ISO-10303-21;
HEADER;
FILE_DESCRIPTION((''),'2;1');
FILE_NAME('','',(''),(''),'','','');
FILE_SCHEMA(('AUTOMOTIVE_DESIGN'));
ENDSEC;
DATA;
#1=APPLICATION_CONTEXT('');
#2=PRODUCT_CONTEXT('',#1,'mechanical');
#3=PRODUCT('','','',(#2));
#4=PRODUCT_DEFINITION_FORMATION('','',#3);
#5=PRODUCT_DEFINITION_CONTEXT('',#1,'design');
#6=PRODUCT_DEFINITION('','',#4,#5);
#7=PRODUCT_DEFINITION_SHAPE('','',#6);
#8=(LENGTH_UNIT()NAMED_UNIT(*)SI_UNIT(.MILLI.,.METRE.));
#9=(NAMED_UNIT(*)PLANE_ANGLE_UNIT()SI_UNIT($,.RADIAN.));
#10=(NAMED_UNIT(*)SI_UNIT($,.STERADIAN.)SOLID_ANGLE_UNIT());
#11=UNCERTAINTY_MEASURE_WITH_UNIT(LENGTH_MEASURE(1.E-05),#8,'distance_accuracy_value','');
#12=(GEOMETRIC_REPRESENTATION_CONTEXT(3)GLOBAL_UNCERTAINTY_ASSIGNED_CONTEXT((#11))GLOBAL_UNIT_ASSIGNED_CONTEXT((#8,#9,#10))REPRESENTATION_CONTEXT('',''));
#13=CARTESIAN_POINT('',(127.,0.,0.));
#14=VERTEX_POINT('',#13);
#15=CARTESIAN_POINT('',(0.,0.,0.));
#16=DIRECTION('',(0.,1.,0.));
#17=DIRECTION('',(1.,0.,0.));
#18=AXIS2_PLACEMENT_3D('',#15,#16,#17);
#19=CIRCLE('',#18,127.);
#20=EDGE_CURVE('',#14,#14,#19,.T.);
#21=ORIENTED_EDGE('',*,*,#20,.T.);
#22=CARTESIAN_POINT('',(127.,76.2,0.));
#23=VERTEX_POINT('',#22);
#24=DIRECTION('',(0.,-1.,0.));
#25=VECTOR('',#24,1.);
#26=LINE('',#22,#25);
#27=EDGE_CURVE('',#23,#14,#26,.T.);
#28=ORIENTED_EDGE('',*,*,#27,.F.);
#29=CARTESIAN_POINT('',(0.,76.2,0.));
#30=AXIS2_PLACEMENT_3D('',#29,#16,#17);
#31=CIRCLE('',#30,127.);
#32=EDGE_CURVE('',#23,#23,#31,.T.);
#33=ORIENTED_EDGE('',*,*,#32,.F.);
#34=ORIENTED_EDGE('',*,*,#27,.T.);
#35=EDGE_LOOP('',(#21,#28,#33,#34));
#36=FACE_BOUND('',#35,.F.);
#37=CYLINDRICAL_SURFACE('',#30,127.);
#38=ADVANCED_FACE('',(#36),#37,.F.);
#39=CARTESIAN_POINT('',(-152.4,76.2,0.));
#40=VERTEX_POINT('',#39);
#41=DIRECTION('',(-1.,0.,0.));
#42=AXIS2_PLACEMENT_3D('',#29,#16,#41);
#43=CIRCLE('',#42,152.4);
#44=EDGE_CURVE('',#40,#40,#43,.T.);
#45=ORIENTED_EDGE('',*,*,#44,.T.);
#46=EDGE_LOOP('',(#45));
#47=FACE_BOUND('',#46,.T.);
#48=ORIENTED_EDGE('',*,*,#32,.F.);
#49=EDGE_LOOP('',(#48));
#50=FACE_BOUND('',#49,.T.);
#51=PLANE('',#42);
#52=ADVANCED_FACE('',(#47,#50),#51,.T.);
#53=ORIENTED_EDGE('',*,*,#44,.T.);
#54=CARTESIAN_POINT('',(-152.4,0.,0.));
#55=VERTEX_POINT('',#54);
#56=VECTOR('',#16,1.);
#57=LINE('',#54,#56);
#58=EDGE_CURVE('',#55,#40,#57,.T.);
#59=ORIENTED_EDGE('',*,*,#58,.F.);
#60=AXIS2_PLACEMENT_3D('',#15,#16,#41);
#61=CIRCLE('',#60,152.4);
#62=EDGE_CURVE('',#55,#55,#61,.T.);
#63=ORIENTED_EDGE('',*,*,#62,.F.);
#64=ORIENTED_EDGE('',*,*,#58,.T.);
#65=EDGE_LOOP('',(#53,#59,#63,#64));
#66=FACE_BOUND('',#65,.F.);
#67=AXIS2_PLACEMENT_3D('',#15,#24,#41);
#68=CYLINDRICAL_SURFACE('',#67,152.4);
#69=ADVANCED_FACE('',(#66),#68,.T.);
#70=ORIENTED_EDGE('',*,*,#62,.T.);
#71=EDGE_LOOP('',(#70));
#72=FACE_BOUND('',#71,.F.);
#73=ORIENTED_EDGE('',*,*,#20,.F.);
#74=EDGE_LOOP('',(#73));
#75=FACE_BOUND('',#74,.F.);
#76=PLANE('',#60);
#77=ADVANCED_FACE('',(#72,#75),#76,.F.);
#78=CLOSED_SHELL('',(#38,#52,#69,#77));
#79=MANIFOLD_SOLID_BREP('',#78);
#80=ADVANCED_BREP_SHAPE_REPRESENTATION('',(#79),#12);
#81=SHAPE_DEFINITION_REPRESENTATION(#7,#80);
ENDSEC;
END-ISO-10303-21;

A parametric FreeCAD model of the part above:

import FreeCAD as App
import Part
import Sketcher
from FreeCAD import Vector
Q = App.Units.Quantity

doc = App.newDocument("Part")
params = doc.addObject("Spreadsheet::Sheet", "Params")
for row, (alias, value) in enumerate([
    ("sketch1_diameter", "12 in"),
    ("pad1_length", "3 in"),
    ("sketch2_diameter", "10 in"),
], start=1):
    params.set(f"A{row}", alias)
    params.set(f"B{row}", "=" + value)
    params.setAlias(f"B{row}", alias)

body = doc.addObject("PartDesign::Body", "Body")

# Sketch on XZ plane
sketch1 = doc.addObject("Sketcher::SketchObject", "Sketch")
body.addObject(sketch1)
sketch1.AttachmentSupport = (doc.XZ_Plane, [""])
sketch1.MapMode = "FlatFace"
sketch1.addGeometry(Part.Circle(Vector(0, 0, 0), Vector(0, 0, 1), 152.4), False)
sketch1.addConstraint([
    Sketcher.Constraint("Coincident", 0, 3, -1, 1),
    Sketcher.Constraint("Diameter", 0, Q("12 in")),
])
sketch1.setExpression("Constraints[1]", "Params.sketch1_diameter")
pad1 = doc.addObject("PartDesign::Pad", "Pad")
body.addObject(pad1)
pad1.Profile = sketch1
pad1.setExpression("Length", "Params.pad1_length")
pad1.Reversed = True

# Sketch on XZ plane
sketch2 = doc.addObject("Sketcher::SketchObject", "Sketch001")
body.addObject(sketch2)
sketch2.AttachmentSupport = (doc.XZ_Plane, [""])
sketch2.MapMode = "FlatFace"
sketch2.AttachmentOffset = App.Placement(Vector(0, 0, -3 * 25.4), App.Rotation())
sketch2.addGeometry(Part.Circle(Vector(0, 0, 0), Vector(0, 0, 1), 127), False)
sketch2.addConstraint([
    Sketcher.Constraint("Coincident", 0, 3, -1, 1),
    Sketcher.Constraint("Diameter", 0, Q("10 in")),
])
sketch2.setExpression("Constraints[1]", "Params.sketch2_diameter")
pocket1 = doc.addObject("PartDesign::Pocket", "Pocket")
body.addObject(pocket1)
pocket1.Profile = sketch2
pocket1.Type = "ThroughAll"
pocket1.Reversed = True

doc.recompute()
